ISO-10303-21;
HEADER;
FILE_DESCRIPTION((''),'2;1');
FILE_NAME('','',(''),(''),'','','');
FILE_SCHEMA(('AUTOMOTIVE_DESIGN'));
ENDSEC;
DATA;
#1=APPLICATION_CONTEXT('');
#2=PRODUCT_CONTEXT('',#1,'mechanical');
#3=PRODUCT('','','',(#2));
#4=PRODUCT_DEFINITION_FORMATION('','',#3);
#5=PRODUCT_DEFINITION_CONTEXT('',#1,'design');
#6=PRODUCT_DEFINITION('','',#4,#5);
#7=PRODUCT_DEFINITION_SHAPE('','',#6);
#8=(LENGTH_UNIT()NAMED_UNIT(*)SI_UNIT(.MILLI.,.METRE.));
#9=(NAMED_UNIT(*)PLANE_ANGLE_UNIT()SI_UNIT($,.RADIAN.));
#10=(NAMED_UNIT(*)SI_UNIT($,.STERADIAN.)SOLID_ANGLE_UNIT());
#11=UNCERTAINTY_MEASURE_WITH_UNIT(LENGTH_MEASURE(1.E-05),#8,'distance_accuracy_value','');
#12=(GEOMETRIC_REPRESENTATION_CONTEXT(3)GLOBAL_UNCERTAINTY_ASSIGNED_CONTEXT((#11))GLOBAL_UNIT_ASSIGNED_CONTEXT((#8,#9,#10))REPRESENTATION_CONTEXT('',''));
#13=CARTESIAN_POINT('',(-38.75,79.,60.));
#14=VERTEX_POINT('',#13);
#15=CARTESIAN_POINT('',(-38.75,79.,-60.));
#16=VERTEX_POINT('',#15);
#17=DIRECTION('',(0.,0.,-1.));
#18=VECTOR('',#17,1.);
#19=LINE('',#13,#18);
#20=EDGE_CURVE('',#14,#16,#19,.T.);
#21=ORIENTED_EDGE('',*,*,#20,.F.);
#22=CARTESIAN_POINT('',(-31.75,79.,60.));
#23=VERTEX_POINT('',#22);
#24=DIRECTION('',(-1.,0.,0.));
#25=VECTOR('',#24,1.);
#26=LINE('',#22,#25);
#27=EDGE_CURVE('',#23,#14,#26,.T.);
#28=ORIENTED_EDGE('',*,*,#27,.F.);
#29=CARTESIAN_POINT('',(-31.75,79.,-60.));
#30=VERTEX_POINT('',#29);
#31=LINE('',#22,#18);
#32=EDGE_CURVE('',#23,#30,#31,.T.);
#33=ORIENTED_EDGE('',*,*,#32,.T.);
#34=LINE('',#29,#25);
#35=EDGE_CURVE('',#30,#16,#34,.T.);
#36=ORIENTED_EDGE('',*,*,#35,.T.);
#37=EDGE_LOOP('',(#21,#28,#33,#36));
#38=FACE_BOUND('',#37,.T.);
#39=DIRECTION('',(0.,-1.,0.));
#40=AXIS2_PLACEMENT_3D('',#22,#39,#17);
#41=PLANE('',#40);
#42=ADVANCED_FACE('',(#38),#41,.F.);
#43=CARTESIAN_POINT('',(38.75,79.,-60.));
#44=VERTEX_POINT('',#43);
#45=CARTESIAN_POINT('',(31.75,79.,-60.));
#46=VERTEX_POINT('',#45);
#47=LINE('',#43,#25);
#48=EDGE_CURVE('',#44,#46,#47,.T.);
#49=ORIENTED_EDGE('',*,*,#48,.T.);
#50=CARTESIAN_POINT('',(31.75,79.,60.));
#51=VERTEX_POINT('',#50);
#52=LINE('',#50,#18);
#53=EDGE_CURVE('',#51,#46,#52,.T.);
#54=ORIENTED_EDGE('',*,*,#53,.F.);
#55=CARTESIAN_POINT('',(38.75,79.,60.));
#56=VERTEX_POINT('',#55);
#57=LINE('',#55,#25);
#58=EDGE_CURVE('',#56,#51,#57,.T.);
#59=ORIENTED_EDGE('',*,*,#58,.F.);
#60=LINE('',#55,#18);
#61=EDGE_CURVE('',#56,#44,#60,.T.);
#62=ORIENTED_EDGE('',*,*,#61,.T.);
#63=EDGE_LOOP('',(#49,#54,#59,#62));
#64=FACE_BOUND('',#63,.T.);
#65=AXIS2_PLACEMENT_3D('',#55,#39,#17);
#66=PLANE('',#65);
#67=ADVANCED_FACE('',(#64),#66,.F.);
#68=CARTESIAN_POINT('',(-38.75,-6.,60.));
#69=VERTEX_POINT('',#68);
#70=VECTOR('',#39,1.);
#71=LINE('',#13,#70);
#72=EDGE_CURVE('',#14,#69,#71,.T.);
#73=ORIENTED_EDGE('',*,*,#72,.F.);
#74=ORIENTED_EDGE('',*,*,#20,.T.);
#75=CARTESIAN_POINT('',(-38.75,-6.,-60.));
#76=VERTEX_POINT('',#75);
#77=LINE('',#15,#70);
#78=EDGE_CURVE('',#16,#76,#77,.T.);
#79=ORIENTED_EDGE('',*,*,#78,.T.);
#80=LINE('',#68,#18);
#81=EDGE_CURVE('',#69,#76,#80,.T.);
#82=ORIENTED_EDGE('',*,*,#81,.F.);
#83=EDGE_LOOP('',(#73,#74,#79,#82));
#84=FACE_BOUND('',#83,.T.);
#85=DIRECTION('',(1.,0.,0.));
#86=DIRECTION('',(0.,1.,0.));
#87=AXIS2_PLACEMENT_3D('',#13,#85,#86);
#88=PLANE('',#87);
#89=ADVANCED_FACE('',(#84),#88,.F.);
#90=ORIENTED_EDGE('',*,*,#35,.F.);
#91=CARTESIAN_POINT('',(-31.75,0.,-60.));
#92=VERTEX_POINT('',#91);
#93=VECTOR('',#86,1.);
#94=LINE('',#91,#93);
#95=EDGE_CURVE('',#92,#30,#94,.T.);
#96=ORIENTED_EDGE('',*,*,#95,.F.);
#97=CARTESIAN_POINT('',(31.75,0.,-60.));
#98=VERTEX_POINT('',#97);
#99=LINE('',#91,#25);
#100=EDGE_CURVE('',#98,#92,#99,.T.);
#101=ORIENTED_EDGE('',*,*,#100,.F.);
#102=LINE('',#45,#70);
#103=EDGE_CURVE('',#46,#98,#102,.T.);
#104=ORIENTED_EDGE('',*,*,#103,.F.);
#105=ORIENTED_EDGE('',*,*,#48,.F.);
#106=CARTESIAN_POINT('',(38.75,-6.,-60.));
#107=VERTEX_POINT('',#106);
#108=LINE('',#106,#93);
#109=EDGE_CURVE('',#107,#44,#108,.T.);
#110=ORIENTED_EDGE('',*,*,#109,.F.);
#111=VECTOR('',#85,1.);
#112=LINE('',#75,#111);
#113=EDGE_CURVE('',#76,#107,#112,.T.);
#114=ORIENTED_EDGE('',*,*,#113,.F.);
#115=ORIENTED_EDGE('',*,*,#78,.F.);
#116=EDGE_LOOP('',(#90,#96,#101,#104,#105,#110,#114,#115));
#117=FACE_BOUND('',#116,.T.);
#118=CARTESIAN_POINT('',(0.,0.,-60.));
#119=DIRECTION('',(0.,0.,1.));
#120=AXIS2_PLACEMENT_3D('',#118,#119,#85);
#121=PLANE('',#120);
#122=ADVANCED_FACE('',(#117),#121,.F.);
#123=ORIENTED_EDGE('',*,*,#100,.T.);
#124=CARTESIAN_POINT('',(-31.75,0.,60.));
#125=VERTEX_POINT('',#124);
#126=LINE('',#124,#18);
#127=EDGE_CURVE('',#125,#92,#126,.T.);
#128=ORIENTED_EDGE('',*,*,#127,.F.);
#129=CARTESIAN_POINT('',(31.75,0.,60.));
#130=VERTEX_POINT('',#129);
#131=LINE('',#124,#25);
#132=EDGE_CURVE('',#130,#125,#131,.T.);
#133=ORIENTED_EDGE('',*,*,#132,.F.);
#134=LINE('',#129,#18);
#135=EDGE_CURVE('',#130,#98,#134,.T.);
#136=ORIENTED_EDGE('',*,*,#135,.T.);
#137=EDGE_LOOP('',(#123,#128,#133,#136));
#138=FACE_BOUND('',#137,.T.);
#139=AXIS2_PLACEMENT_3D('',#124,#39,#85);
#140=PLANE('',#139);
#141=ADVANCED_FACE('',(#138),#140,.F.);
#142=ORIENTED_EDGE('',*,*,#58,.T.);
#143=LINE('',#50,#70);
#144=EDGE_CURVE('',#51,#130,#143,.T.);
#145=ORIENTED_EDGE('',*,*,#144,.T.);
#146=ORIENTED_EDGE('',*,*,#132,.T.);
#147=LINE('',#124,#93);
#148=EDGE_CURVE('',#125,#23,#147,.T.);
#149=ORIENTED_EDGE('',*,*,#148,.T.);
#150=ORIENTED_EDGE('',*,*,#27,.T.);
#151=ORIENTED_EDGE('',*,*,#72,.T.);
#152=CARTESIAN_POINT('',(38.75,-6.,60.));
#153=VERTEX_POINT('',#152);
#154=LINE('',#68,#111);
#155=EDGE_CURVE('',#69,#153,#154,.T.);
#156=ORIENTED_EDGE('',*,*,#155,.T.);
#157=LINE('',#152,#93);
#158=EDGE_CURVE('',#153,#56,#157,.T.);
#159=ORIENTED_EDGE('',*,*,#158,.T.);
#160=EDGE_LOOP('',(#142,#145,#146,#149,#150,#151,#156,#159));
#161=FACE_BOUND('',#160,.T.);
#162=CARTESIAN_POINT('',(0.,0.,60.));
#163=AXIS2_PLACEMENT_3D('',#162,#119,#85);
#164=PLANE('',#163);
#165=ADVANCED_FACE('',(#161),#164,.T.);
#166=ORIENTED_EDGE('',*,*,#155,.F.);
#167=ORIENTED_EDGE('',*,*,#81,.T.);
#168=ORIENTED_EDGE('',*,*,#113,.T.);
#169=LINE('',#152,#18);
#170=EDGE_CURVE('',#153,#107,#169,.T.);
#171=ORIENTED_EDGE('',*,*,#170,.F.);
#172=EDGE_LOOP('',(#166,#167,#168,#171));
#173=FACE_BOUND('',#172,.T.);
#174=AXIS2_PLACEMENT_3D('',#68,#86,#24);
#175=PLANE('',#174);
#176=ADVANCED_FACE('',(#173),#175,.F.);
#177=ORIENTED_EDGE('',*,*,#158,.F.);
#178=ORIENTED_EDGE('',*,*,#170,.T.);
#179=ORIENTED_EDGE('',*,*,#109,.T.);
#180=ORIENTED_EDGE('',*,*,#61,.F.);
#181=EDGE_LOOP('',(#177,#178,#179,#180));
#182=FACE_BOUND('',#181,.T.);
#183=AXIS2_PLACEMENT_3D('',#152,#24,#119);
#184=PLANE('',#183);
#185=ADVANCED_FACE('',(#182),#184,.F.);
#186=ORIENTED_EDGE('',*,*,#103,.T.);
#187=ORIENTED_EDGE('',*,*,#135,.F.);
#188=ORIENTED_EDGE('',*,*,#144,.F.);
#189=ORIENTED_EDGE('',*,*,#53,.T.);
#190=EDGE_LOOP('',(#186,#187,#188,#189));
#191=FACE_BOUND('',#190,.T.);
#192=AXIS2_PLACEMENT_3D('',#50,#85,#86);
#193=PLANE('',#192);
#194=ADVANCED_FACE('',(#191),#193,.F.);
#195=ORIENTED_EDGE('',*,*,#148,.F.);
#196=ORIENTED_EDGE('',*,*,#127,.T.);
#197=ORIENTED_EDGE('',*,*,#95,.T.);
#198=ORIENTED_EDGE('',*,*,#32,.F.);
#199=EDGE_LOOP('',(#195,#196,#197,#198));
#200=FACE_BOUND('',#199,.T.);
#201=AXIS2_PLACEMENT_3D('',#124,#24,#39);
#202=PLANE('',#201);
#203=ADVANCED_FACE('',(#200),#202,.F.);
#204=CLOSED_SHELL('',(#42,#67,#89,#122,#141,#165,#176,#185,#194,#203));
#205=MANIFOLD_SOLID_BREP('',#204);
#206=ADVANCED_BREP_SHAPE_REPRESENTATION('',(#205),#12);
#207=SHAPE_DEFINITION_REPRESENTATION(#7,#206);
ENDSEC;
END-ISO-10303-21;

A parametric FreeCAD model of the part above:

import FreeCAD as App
import Part
import Sketcher
from FreeCAD import Vector
Q = App.Units.Quantity

doc = App.newDocument("Part")
body = doc.addObject("PartDesign::Body", "Body")

# Sketch on XY plane
sketch1 = body.newObject("Sketcher::SketchObject", "Sketch")
sketch1.AttachmentSupport = (doc.getObject("XY_Plane"), [""])
sketch1.MapMode = "FlatFace"
sketch1.addGeometry(Part.LineSegment(Vector(32, 0, 0), Vector(-32, 0, 0)), False)
sketch1.addGeometry(Part.LineSegment(Vector(-32, 0, 0), Vector(-32, 79, 0)), False)
sketch1.addGeometry(Part.LineSegment(Vector(-32, 79, 0), Vector(-39, 79, 0)), False)
sketch1.addGeometry(Part.LineSegment(Vector(-39, 79, 0), Vector(-39, -6, 0)), False)
sketch1.addGeometry(Part.LineSegment(Vector(-39, -6, 0), Vector(39, -6, 0)), False)
sketch1.addGeometry(Part.LineSegment(Vector(39, -6, 0), Vector(39, 79, 0)), False)
sketch1.addGeometry(Part.LineSegment(Vector(39, 79, 0), Vector(32, 79, 0)), False)
sketch1.addGeometry(Part.LineSegment(Vector(32, 79, 0), Vector(32, 0, 0)), False)
sketch1.addConstraint(Sketcher.Constraint("Coincident", 0, 2, 1, 1))
sketch1.addConstraint(Sketcher.Constraint("Coincident", 1, 2, 2, 1))
sketch1.addConstraint(Sketcher.Constraint("Coincident", 2, 2, 3, 1))
sketch1.addConstraint(Sketcher.Constraint("Coincident", 3, 2, 4, 1))
sketch1.addConstraint(Sketcher.Constraint("Coincident", 4, 2, 5, 1))
sketch1.addConstraint(Sketcher.Constraint("Coincident", 5, 2, 6, 1))
sketch1.addConstraint(Sketcher.Constraint("Coincident", 6, 2, 7, 1))
sketch1.addConstraint(Sketcher.Constraint("Coincident", 7, 2, 0, 1))
sketch1.addConstraint(Sketcher.Constraint("Horizontal", 0))
sketch1.addConstraint(Sketcher.Constraint("Vertical", 1))
sketch1.addConstraint(Sketcher.Constraint("Horizontal", 2))
sketch1.addConstraint(Sketcher.Constraint("Vertical", 3))
sketch1.addConstraint(Sketcher.Constraint("Horizontal", 4))
sketch1.addConstraint(Sketcher.Constraint("Vertical", 5))
sketch1.addConstraint(Sketcher.Constraint("Horizontal", 6))
sketch1.addConstraint(Sketcher.Constraint("Vertical", 7))
sketch1.addConstraint(Sketcher.Constraint("Symmetric", 0, 2, 7, 2, -1, 1))
sketch1.addConstraint(Sketcher.Constraint("Symmetric", 2, 2, 5, 2, -2))
sketch1.addConstraint(Sketcher.Constraint("DistanceX", 2, 2, 2, 1, Q("7 mm")))
sketch1.addConstraint(Sketcher.Constraint("DistanceY", 1, 1, 1, 2, Q("79 mm")))
sketch1.addConstraint(Sketcher.Constraint("DistanceY", 3, 2, 3, 1, Q("85 mm")))
sketch1.addConstraint(Sketcher.Constraint("DistanceX", 0, 2, 0, 1, Q("63.5 mm")))
pad1 = body.newObject("PartDesign::Pad", "Pad")
pad1.Profile = sketch1
pad1.Length = 120
pad1.Midplane = True

doc.recompute()
